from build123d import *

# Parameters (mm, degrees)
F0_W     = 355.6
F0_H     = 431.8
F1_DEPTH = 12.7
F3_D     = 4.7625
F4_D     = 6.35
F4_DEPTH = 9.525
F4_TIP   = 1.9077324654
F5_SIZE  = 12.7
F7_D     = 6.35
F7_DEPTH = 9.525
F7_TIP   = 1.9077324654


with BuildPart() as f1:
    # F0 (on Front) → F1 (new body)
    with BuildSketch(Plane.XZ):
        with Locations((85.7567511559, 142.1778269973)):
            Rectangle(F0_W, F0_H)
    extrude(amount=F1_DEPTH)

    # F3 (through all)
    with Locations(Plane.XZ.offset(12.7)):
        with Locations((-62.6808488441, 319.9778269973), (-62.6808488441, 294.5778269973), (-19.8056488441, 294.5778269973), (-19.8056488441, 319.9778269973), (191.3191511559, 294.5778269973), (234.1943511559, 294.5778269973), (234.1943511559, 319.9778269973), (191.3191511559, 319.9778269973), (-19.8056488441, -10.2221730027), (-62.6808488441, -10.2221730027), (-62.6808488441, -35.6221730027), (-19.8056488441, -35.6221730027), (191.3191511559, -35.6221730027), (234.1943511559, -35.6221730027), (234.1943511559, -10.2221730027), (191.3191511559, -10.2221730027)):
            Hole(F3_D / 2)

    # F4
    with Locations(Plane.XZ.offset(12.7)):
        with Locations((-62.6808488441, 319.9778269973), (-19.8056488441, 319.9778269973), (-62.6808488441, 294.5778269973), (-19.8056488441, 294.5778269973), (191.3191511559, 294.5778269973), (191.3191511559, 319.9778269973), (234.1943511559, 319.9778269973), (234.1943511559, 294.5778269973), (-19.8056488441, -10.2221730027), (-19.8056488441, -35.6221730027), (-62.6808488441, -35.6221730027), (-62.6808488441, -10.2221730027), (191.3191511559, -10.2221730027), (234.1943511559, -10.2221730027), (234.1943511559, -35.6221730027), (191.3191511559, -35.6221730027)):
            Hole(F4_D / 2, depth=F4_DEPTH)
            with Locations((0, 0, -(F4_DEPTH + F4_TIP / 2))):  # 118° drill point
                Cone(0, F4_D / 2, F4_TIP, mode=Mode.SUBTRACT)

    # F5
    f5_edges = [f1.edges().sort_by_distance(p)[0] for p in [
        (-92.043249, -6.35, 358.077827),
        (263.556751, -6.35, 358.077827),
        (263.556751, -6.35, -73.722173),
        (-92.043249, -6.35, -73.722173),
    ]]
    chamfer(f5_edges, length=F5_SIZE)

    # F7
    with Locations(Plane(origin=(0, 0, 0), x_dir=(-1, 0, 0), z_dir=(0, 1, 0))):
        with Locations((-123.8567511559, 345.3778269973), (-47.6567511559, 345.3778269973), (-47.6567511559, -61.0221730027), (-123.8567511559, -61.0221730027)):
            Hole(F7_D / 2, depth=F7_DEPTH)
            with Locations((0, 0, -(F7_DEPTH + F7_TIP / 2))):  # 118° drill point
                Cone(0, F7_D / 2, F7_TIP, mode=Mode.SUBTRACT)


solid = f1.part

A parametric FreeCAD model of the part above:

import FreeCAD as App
import Part
import Sketcher

V = App.Vector
Q = App.Units.Quantity


def edges_at(feature, points):
    """Names of the edges that pass closest to the given points."""
    edges = feature.Shape.Edges
    near = lambda p: min(range(len(edges)), key=lambda i: edges[i].distToShape(Part.Vertex(*p))[0])
    return sorted({f"Edge{near(p) + 1}" for p in points})


def add_polygon(sketch, points):
    """Adds a closed chain of lines whose ends are joined by coincident constraints."""
    first, n = sketch.GeometryCount, len(points)
    for a, b in zip(points, points[1:] + points[:1]):
        sketch.addGeometry(Part.LineSegment(App.Vector(*a, 0), App.Vector(*b, 0)), False)
    for i in range(n):
        sketch.addConstraint(Sketcher.Constraint("Coincident", first + i, 2, first + (i + 1) % n, 1))

doc = App.newDocument("Part")
params = doc.addObject("Spreadsheet::Sheet", "Params")
for row, (alias, value) in enumerate([
    ("sketch1_width", "14 in"),
    ("sketch1_height", "17 in"),
    ("pad1_length", "0.5 in"),
    ("sketch2_diameter", "0.1875 in"),
    ("hole_diameter", "0.1875 in"),
    ("sketch3_diameter", "0.25 in"),
    ("hole2_diameter", "0.25 in"),
    ("hole2_depth", "0.375 in"),
    ("chamfer_size", "0.5 in"),
    ("sketch4_diameter", "0.25 in"),
    ("hole3_diameter", "0.25 in"),
    ("hole3_depth", "0.375 in"),
], start=1):
    params.set(f"A{row}", alias)
    params.set(f"B{row}", "=" + value)
    params.setAlias(f"B{row}", alias)

body = doc.addObject("PartDesign::Body", "Body")

# Sketch on XZ plane
sketch1 = body.newObject("Sketcher::SketchObject", "Sketch")
sketch1.AttachmentSupport = (doc.getObject("XZ_Plane"), [""])
sketch1.MapMode = "FlatFace"
add_polygon(sketch1, [(-92, 358), (-92, -74), (264, -74), (264, 358)])  # lines 0-3
sketch1.addConstraint(Sketcher.Constraint("Vertical", 0))
sketch1.addConstraint(Sketcher.Constraint("Horizontal", 1))
sketch1.addConstraint(Sketcher.Constraint("Vertical", 2))
sketch1.addConstraint(Sketcher.Constraint("Horizontal", 3))
sketch1.addConstraint(Sketcher.Constraint("DistanceX", 1, 1, 1, 2, Q("14 in")))
sketch1.addConstraint(Sketcher.Constraint("DistanceY", 0, 2, 0, 1, Q("17 in")))
sketch1.addConstraint(Sketcher.Constraint("DistanceX", 0, 2, -1, 1, Q("92.043249 mm")))
sketch1.addConstraint(Sketcher.Constraint("DistanceY", 0, 2, -1, 1, Q("73.722173 mm")))
sketch1.setExpression("Constraints[8]", "Params.sketch1_width")
sketch1.setExpression("Constraints[9]", "Params.sketch1_height")
pad1 = body.newObject("PartDesign::Pad", "Pad")
pad1.Profile = sketch1
pad1.setExpression("Length", "Params.pad1_length")

# Sketch on XZ plane
sketch2 = body.newObject("Sketcher::SketchObject", "Sketch001")
sketch2.AttachmentSupport = (doc.getObject("XZ_Plane"), [""])
sketch2.MapMode = "FlatFace"
sketch2.AttachmentOffset = App.Placement(V(0, 0, 0.5 * 25.4), App.Rotation())
sketch2.addGeometry(Part.Circle(V(-62.7, 320, 0), V(0, 0, 1), 2.4), False)
sketch2.addGeometry(Part.Circle(V(-62.7, 294.6, 0), V(0, 0, 1), 2.4), False)
sketch2.addGeometry(Part.Circle(V(-19.8, 294.6, 0), V(0, 0, 1), 2.4), False)
sketch2.addGeometry(Part.Circle(V(-19.8, 320, 0), V(0, 0, 1), 2.4), False)
sketch2.addGeometry(Part.Circle(V(191.3, 294.6, 0), V(0, 0, 1), 2.4), False)
sketch2.addGeometry(Part.Circle(V(234.2, 294.6, 0), V(0, 0, 1), 2.4), False)
sketch2.addGeometry(Part.Circle(V(234.2, 320, 0), V(0, 0, 1), 2.4), False)
sketch2.addGeometry(Part.Circle(V(191.3, 320, 0), V(0, 0, 1), 2.4), False)
sketch2.addGeometry(Part.Circle(V(-19.8, -10.2, 0), V(0, 0, 1), 2.4), False)
sketch2.addGeometry(Part.Circle(V(-62.7, -10.2, 0), V(0, 0, 1), 2.4), False)
sketch2.addGeometry(Part.Circle(V(-62.7, -35.6, 0), V(0, 0, 1), 2.4), False)
sketch2.addGeometry(Part.Circle(V(-19.8, -35.6, 0), V(0, 0, 1), 2.4), False)
sketch2.addGeometry(Part.Circle(V(191.3, -35.6, 0), V(0, 0, 1), 2.4), False)
sketch2.addGeometry(Part.Circle(V(234.2, -35.6, 0), V(0, 0, 1), 2.4), False)
sketch2.addGeometry(Part.Circle(V(234.2, -10.2, 0), V(0, 0, 1), 2.4), False)
sketch2.addGeometry(Part.Circle(V(191.3, -10.2, 0), V(0, 0, 1), 2.4), False)
sketch2.addConstraint(Sketcher.Constraint("Equal", 0, 1))
sketch2.addConstraint(Sketcher.Constraint("Equal", 1, 2))
sketch2.addConstraint(Sketcher.Constraint("Equal", 2, 3))
sketch2.addConstraint(Sketcher.Constraint("Equal", 3, 4))
sketch2.addConstraint(Sketcher.Constraint("Equal", 4, 5))
sketch2.addConstraint(Sketcher.Constraint("Equal", 5, 6))
sketch2.addConstraint(Sketcher.Constraint("Equal", 6, 7))
sketch2.addConstraint(Sketcher.Constraint("Equal", 7, 8))
sketch2.addConstraint(Sketcher.Constraint("Equal", 8, 9))
sketch2.addConstraint(Sketcher.Constraint("Equal", 9, 10))
sketch2.addConstraint(Sketcher.Constraint("Equal", 10, 11))
sketch2.addConstraint(Sketcher.Constraint("Equal", 11, 12))
sketch2.addConstraint(Sketcher.Constraint("Equal", 12, 13))
sketch2.addConstraint(Sketcher.Constraint("Equal", 13, 14))
sketch2.addConstraint(Sketcher.Constraint("Equal", 14, 15))
sketch2.addConstraint(Sketcher.Constraint("Horizontal", 1, 3, 2, 3))
sketch2.addConstraint(Sketcher.Constraint("Horizontal", 0, 3, 3, 3))
sketch2.addConstraint(Sketcher.Constraint("Horizontal", 2, 3, 4, 3))
sketch2.addConstraint(Sketcher.Constraint("Horizontal", 4, 3, 5, 3))
sketch2.addConstraint(Sketcher.Constraint("Horizontal", 3, 3, 6, 3))
sketch2.addConstraint(Sketcher.Constraint("Horizontal", 6, 3, 7, 3))
sketch2.addConstraint(Sketcher.Constraint("Horizontal", 8, 3, 9, 3))
sketch2.addConstraint(Sketcher.Constraint("Horizontal", 10, 3, 11, 3))
sketch2.addConstraint(Sketcher.Constraint("Horizontal", 11, 3, 12, 3))
sketch2.addConstraint(Sketcher.Constraint("Horizontal", 12, 3, 13, 3))
sketch2.addConstraint(Sketcher.Constraint("Horizontal", 9, 3, 14, 3))
sketch2.addConstraint(Sketcher.Constraint("Horizontal", 14, 3, 15, 3))
sketch2.addConstraint(Sketcher.Constraint("Vertical", 0, 3, 1, 3))
sketch2.addConstraint(Sketcher.Constraint("Vertical", 2, 3, 3, 3))
sketch2.addConstraint(Sketcher.Constraint("Vertical", 5, 3, 6, 3))
sketch2.addConstraint(Sketcher.Constraint("Vertical", 4, 3, 7, 3))
sketch2.addConstraint(Sketcher.Constraint("Vertical", 3, 3, 8, 3))
sketch2.addConstraint(Sketcher.Constraint("Vertical", 1, 3, 9, 3))
sketch2.addConstraint(Sketcher.Constraint("Vertical", 9, 3, 10, 3))
sketch2.addConstraint(Sketcher.Constraint("Vertical", 8, 3, 11, 3))
sketch2.addConstraint(Sketcher.Constraint("Vertical", 7, 3, 12, 3))
sketch2.addConstraint(Sketcher.Constraint("Vertical", 6, 3, 13, 3))
sketch2.addConstraint(Sketcher.Constraint("Vertical", 13, 3, 14, 3))
sketch2.addConstraint(Sketcher.Constraint("Vertical", 12, 3, 15, 3))
sketch2.addConstraint(Sketcher.Constraint("Diameter", 0, Q("0.1875 in")))
sketch2.addConstraint(Sketcher.Constraint("DistanceY", 1, 3, 0, 3, Q("1 in")))
sketch2.addConstraint(Sketcher.Constraint("DistanceX", 1, 3, 4, 3, Q("10 in")))
sketch2.addConstraint(Sketcher.Constraint("DistanceX", 2, 3, 5, 3, Q("10 in")))
sketch2.addConstraint(Sketcher.Constraint("DistanceY", 8, 3, 2, 3, Q("12 in")))
sketch2.addConstraint(Sketcher.Constraint("DistanceY", 10, 3, 9, 3, Q("1 in")))
sketch2.addConstraint(Sketcher.Constraint("DistanceX", 1, 3, 2, 3, Q("1.688 in")))
sketch2.addConstraint(Sketcher.Constraint("DistanceX", 0, 3, -1, 1, Q("62.680849 mm")))
sketch2.addConstraint(Sketcher.Constraint("DistanceY", -1, 1, 0, 3, Q("319.977827 mm")))
sketch2.setExpression("Constraints[39]", "Params.sketch2_diameter")
doc.recompute()
hole = body.newObject("PartDesign::Hole", "Hole")
hole.Profile = sketch2
hole.ThreadType = "None"
hole.setExpression("Diameter", "Params.hole_diameter")
hole.DepthType = "ThroughAll"

# Sketch on XZ plane
sketch3 = body.newObject("Sketcher::SketchObject", "Sketch002")
sketch3.AttachmentSupport = (doc.getObject("XZ_Plane"), [""])
sketch3.MapMode = "FlatFace"
sketch3.AttachmentOffset = App.Placement(V(0, 0, 0.5 * 25.4), App.Rotation())
sketch3.addGeometry(Part.Circle(V(-62.7, 320, 0), V(0, 0, 1), 3.2), False)
sketch3.addGeometry(Part.Circle(V(-19.8, 320, 0), V(0, 0, 1), 3.2), False)
sketch3.addGeometry(Part.Circle(V(-62.7, 294.6, 0), V(0, 0, 1), 3.2), False)
sketch3.addGeometry(Part.Circle(V(-19.8, 294.6, 0), V(0, 0, 1), 3.2), False)
sketch3.addGeometry(Part.Circle(V(191.3, 294.6, 0), V(0, 0, 1), 3.2), False)
sketch3.addGeometry(Part.Circle(V(191.3, 320, 0), V(0, 0, 1), 3.2), False)
sketch3.addGeometry(Part.Circle(V(234.2, 320, 0), V(0, 0, 1), 3.2), False)
sketch3.addGeometry(Part.Circle(V(234.2, 294.6, 0), V(0, 0, 1), 3.2), False)
sketch3.addGeometry(Part.Circle(V(-19.8, -10.2, 0), V(0, 0, 1), 3.2), False)
sketch3.addGeometry(Part.Circle(V(-19.8, -35.6, 0), V(0, 0, 1), 3.2), False)
sketch3.addGeometry(Part.Circle(V(-62.7, -35.6, 0), V(0, 0, 1), 3.2), False)
sketch3.addGeometry(Part.Circle(V(-62.7, -10.2, 0), V(0, 0, 1), 3.2), False)
sketch3.addGeometry(Part.Circle(V(191.3, -10.2, 0), V(0, 0, 1), 3.2), False)
sketch3.addGeometry(Part.Circle(V(234.2, -10.2, 0), V(0, 0, 1), 3.2), False)
sketch3.addGeometry(Part.Circle(V(234.2, -35.6, 0), V(0, 0, 1), 3.2), False)
sketch3.addGeometry(Part.Circle(V(191.3, -35.6, 0), V(0, 0, 1), 3.2), False)
sketch3.addConstraint(Sketcher.Constraint("Equal", 0, 1))
sketch3.addConstraint(Sketcher.Constraint("Equal", 1, 2))
sketch3.addConstraint(Sketcher.Constraint("Equal", 2, 3))
sketch3.addConstraint(Sketcher.Constraint("Equal", 3, 4))
sketch3.addConstraint(Sketcher.Constraint("Equal", 4, 5))
sketch3.addConstraint(Sketcher.Constraint("Equal", 5, 6))
sketch3.addConstraint(Sketcher.Constraint("Equal", 6, 7))
sketch3.addConstraint(Sketcher.Constraint("Equal", 7, 8))
sketch3.addConstraint(Sketcher.Constraint("Equal", 8, 9))
sketch3.addConstraint(Sketcher.Constraint("Equal", 9, 10))
sketch3.addConstraint(Sketcher.Constraint("Equal", 10, 11))
sketch3.addConstraint(Sketcher.Constraint("Equal", 11, 12))
sketch3.addConstraint(Sketcher.Constraint("Equal", 12, 13))
sketch3.addConstraint(Sketcher.Constraint("Equal", 13, 14))
sketch3.addConstraint(Sketcher.Constraint("Equal", 14, 15))
sketch3.addConstraint(Sketcher.Constraint("Horizontal", 0, 3, 1, 3))
sketch3.addConstraint(Sketcher.Constraint("Horizontal", 2, 3, 3, 3))
sketch3.addConstraint(Sketcher.Constraint("Horizontal", 3, 3, 4, 3))
sketch3.addConstraint(Sketcher.Constraint("Horizontal", 1, 3, 5, 3))
sketch3.addConstraint(Sketcher.Constraint("Horizontal", 5, 3, 6, 3))
sketch3.addConstraint(Sketcher.Constraint("Horizontal", 4, 3, 7, 3))
sketch3.addConstraint(Sketcher.Constraint("Horizontal", 9, 3, 10, 3))
sketch3.addConstraint(Sketcher.Constraint("Horizontal", 8, 3, 11, 3))
sketch3.addConstraint(Sketcher.Constraint("Horizontal", 11, 3, 12, 3))
sketch3.addConstraint(Sketcher.Constraint("Horizontal", 12, 3, 13, 3))
sketch3.addConstraint(Sketcher.Constraint("Horizontal", 10, 3, 14, 3))
sketch3.addConstraint(Sketcher.Constraint("Horizontal", 14, 3, 15, 3))
sketch3.addConstraint(Sketcher.Constraint("Vertical", 0, 3, 2, 3))
sketch3.addConstraint(Sketcher.Constraint("Vertical", 1, 3, 3, 3))
sketch3.addConstraint(Sketcher.Constraint("Vertical", 4, 3, 5, 3))
sketch3.addConstraint(Sketcher.Constraint("Vertical", 6, 3, 7, 3))
sketch3.addConstraint(Sketcher.Constraint("Vertical", 3, 3, 8, 3))
sketch3.addConstraint(Sketcher.Constraint("Vertical", 8, 3, 9, 3))
sketch3.addConstraint(Sketcher.Constraint("Vertical", 2, 3, 10, 3))
sketch3.addConstraint(Sketcher.Constraint("Vertical", 10, 3, 11, 3))
sketch3.addConstraint(Sketcher.Constraint("Vertical", 5, 3, 12, 3))
sketch3.addConstraint(Sketcher.Constraint("Vertical", 7, 3, 13, 3))
sketch3.addConstraint(Sketcher.Constraint("Vertical", 13, 3, 14, 3))
sketch3.addConstraint(Sketcher.Constraint("Vertical", 12, 3, 15, 3))
sketch3.addConstraint(Sketcher.Constraint("Diameter", 0, Q("0.25 in")))
sketch3.addConstraint(Sketcher.Constraint("DistanceY", 2, 3, 0, 3, Q("1 in")))
sketch3.addConstraint(Sketcher.Constraint("DistanceX", 2, 3, 4, 3, Q("10 in")))
sketch3.addConstraint(Sketcher.Constraint("DistanceX", 1, 3, 6, 3, Q("10 in")))
sketch3.addConstraint(Sketcher.Constraint("DistanceY", 8, 3, 3, 3, Q("12 in")))
sketch3.addConstraint(Sketcher.Constraint("DistanceY", 9, 3, 8, 3, Q("1 in")))
sketch3.addConstraint(Sketcher.Constraint("DistanceX", 0, 3, 1, 3, Q("1.688 in")))
sketch3.addConstraint(Sketcher.Constraint("DistanceX", 0, 3, -1, 1, Q("62.680849 mm")))
sketch3.addConstraint(Sketcher.Constraint("DistanceY", -1, 1, 0, 3, Q("319.977827 mm")))
sketch3.setExpression("Constraints[39]", "Params.sketch3_diameter")
doc.recompute()
hole2 = body.newObject("PartDesign::Hole", "Hole001")
hole2.Profile = sketch3
hole2.ThreadType = "None"
hole2.setExpression("Diameter", "Params.hole2_diameter")
hole2.DepthType = "Dimension"
hole2.setExpression("Depth", "Params.hole2_depth")
hole2.DrillPoint = "Angled"
hole2.DrillPointAngle = 118
doc.recompute()

chamfer = body.newObject("PartDesign::Chamfer", "Chamfer")
chamfer.Base = (hole2, edges_at(hole2, [
    (-92.043, -6.35, 358.078),
    (263.557, -6.35, 358.078),
    (263.557, -6.35, -73.722),
    (-92.043, -6.35, -73.722),
]))
chamfer.setExpression("Size", "Params.chamfer_size")

# Sketch on XZ plane
sketch4 = body.newObject("Sketcher::SketchObject", "Sketch003")
sketch4.AttachmentSupport = (doc.getObject("XZ_Plane"), [""])
sketch4.MapMode = "FlatFace"
sketch4.addGeometry(Part.Circle(V(123.9, 345.4, 0), V(0, 0, 1), 3.2), False)
sketch4.addGeometry(Part.Circle(V(47.7, 345.4, 0), V(0, 0, 1), 3.2), False)
sketch4.addGeometry(Part.Circle(V(47.7, -61, 0), V(0, 0, 1), 3.2), False)
sketch4.addGeometry(Part.Circle(V(123.9, -61, 0), V(0, 0, 1), 3.2), False)
sketch4.addConstraint(Sketcher.Constraint("Equal", 0, 1))
sketch4.addConstraint(Sketcher.Constraint("Equal", 1, 2))
sketch4.addConstraint(Sketcher.Constraint("Equal", 2, 3))
sketch4.addConstraint(Sketcher.Constraint("Horizontal", 0, 3, 1, 3))
sketch4.addConstraint(Sketcher.Constraint("Horizontal", 2, 3, 3, 3))
sketch4.addConstraint(Sketcher.Constraint("Vertical", 1, 3, 2, 3))
sketch4.addConstraint(Sketcher.Constraint("Vertical", 0, 3, 3, 3))
sketch4.addConstraint(Sketcher.Constraint("Diameter", 0, Q("0.25 in")))
sketch4.addConstraint(Sketcher.Constraint("DistanceX", 1, 3, 0, 3, Q("3 in")))
sketch4.addConstraint(Sketcher.Constraint("DistanceY", 2, 3, 1, 3, Q("16 in")))
sketch4.addConstraint(Sketcher.Constraint("DistanceX", -1, 1, 0, 3, Q("123.856751 mm")))
sketch4.addConstraint(Sketcher.Constraint("DistanceY", -1, 1, 0, 3, Q("345.377827 mm")))
sketch4.setExpression("Constraints[7]", "Params.sketch4_diameter")
doc.recompute()
hole3 = body.newObject("PartDesign::Hole", "Hole002")
hole3.Profile = sketch4
hole3.ThreadType = "None"
hole3.setExpression("Diameter", "Params.hole3_diameter")
hole3.DepthType = "Dimension"
hole3.setExpression("Depth", "Params.hole3_depth")
hole3.DrillPoint = "Angled"
hole3.DrillPointAngle = 118
hole3.Reversed = True

doc.recompute()
